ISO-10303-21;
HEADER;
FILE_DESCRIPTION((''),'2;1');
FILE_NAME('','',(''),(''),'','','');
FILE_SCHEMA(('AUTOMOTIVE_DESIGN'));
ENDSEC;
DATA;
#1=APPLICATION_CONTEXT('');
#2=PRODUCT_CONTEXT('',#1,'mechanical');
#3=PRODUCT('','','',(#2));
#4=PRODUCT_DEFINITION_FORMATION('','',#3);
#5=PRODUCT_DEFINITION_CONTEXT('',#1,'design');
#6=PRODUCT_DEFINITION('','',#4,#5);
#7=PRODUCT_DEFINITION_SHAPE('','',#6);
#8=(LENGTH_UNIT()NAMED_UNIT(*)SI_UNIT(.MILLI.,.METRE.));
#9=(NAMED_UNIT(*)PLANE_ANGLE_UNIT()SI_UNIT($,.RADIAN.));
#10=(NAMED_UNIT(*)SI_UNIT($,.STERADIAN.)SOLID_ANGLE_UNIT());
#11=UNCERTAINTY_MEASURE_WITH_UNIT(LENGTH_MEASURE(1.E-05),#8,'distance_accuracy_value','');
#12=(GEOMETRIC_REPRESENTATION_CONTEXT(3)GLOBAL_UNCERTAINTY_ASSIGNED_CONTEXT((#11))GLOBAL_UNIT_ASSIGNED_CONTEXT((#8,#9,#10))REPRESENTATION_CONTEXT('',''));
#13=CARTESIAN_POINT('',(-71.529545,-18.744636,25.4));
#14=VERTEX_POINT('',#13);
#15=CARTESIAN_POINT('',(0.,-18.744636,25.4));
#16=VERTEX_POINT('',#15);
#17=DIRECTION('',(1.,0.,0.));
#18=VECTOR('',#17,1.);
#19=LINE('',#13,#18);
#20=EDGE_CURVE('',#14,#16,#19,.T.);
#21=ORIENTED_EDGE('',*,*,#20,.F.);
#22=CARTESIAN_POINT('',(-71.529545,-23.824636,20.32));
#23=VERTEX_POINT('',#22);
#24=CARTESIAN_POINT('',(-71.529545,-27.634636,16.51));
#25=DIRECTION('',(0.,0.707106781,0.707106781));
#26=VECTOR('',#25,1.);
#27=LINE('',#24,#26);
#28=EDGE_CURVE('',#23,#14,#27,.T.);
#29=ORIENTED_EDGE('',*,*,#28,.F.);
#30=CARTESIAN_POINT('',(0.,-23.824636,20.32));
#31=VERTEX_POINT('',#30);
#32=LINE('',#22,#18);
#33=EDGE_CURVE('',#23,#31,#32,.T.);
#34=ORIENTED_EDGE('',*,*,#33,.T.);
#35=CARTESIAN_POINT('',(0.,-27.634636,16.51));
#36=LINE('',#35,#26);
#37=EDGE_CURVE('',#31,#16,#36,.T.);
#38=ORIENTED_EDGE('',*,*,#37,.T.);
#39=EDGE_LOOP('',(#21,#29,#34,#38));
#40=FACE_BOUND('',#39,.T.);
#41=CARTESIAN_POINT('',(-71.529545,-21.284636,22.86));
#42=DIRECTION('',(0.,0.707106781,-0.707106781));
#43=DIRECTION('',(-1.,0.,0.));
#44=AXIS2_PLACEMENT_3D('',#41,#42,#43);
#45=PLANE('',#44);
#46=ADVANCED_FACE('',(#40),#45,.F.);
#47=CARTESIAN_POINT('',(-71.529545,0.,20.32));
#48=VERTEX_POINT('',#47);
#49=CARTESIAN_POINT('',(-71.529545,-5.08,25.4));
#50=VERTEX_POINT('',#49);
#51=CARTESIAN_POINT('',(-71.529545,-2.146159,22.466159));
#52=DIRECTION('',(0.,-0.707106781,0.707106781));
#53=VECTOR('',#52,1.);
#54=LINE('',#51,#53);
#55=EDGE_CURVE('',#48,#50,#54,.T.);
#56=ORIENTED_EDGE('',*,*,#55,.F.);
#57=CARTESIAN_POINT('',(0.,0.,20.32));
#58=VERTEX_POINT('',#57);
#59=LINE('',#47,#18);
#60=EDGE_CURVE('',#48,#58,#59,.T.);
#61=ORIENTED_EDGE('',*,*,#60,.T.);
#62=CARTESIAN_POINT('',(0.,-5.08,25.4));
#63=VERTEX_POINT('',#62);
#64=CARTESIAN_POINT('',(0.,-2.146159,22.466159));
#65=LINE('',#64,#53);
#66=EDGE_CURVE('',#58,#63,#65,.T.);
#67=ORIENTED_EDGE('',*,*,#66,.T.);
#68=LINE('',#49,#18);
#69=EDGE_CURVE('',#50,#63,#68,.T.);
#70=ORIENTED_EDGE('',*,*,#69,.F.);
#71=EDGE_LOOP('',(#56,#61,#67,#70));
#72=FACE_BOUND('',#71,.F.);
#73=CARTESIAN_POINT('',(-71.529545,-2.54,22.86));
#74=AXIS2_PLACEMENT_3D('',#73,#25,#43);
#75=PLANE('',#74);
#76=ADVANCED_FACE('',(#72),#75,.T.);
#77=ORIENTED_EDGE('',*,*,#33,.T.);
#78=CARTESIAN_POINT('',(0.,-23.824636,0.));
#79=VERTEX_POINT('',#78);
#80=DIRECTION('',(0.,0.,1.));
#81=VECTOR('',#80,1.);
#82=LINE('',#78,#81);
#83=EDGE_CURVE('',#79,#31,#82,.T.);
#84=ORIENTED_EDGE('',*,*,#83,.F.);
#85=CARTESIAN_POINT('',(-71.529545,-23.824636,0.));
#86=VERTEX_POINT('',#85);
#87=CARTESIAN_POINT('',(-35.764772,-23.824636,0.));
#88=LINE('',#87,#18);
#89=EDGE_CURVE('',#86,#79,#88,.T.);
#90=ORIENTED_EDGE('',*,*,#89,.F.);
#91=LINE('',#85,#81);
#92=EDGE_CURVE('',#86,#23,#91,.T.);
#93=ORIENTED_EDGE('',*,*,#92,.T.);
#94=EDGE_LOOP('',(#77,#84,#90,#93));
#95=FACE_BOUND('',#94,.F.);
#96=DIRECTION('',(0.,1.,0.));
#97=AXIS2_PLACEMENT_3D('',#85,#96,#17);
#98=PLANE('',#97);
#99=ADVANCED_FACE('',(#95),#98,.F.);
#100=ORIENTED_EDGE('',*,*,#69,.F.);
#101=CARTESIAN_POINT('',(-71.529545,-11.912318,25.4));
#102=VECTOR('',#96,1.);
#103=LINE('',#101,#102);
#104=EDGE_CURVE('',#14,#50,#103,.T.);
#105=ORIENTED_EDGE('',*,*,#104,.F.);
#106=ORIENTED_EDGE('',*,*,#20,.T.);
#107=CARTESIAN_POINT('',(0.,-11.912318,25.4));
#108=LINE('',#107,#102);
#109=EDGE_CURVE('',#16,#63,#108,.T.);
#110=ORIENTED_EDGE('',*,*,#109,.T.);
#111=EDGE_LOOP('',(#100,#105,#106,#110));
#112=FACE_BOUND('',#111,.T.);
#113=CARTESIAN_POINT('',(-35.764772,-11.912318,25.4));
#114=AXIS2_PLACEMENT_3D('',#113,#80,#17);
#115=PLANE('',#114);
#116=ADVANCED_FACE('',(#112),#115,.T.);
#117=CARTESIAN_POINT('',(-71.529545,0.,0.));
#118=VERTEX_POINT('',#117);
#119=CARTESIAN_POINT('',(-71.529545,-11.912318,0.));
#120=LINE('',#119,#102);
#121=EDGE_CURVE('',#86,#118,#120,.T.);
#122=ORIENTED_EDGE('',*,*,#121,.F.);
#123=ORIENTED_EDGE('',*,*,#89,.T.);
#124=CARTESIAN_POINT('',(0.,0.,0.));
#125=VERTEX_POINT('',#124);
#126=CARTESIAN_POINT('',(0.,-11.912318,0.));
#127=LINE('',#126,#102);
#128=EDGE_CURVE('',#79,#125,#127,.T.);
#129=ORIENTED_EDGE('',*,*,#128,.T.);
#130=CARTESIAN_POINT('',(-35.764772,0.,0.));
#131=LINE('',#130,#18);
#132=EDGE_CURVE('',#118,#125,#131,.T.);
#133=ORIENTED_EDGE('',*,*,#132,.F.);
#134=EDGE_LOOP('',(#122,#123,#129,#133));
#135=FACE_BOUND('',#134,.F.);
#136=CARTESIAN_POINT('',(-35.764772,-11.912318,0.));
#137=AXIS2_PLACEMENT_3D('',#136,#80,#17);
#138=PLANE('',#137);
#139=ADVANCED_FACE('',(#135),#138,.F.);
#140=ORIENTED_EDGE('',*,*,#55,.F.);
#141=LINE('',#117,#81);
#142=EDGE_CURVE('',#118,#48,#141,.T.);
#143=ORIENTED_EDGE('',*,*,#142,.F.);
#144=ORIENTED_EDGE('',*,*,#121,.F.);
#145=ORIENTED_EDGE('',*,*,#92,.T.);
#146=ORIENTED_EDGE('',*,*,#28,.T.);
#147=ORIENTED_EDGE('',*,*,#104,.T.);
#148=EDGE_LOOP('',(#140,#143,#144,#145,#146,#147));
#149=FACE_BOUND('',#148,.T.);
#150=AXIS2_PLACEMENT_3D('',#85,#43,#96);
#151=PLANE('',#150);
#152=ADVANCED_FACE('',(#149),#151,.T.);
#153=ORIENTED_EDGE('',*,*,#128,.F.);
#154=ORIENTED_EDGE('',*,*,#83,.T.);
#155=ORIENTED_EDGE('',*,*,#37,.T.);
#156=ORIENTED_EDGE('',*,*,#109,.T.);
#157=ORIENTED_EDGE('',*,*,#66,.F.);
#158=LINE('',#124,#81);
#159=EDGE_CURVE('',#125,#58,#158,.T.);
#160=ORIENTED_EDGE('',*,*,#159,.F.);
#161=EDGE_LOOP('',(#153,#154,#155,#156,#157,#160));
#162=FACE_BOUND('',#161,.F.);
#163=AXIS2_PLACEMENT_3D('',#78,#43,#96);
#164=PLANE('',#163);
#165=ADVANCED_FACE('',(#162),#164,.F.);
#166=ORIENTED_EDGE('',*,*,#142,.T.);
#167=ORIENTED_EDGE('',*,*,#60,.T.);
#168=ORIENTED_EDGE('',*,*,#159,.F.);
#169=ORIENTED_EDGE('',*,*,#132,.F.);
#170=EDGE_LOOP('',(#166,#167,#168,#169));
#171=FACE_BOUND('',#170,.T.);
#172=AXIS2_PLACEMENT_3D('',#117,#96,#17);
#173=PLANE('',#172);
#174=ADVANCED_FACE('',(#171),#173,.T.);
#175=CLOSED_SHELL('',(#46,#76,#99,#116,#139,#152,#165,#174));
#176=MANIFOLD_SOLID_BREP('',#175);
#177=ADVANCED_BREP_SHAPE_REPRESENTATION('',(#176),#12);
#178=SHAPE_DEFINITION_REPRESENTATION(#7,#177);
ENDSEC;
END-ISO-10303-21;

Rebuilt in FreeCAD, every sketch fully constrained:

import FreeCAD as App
import Part
import Sketcher

V = App.Vector
Q = App.Units.Quantity


def edges_at(feature, points):
    """Names of the edges that pass closest to the given points."""
    edges = feature.Shape.Edges
    near = lambda p: min(range(len(edges)), key=lambda i: edges[i].distToShape(Part.Vertex(*p))[0])
    return sorted({f"Edge{near(p) + 1}" for p in points})

doc = App.newDocument("Part")
body = doc.addObject("PartDesign::Body", "Body")

# Sketch on XY plane
sketch1 = body.newObject("Sketcher::SketchObject", "Sketch")
sketch1.AttachmentSupport = (doc.getObject("XY_Plane"), [""])
sketch1.MapMode = "FlatFace"
sketch1.addGeometry([
    Part.LineSegment(V(-71.529545, 0, 0), V(-71.529545, -23.824636, 0)),
    Part.LineSegment(V(-71.529545, -23.824636, 0), V(0, -23.824636, 0)),
    Part.LineSegment(V(0, -23.824636, 0), V(0, 0, 0)),
    Part.LineSegment(V(0, 0, 0), V(-71.529545, 0, 0)),
], False)
sketch1.addConstraint([
    Sketcher.Constraint("Coincident", 0, 2, 1, 1),
    Sketcher.Constraint("Coincident", 1, 2, 2, 1),
    Sketcher.Constraint("Coincident", 2, 2, 3, 1),
    Sketcher.Constraint("Coincident", 3, 2, 0, 1),
    Sketcher.Constraint("Vertical", 0),
    Sketcher.Constraint("Horizontal", 1),
    Sketcher.Constraint("Vertical", 2),
    Sketcher.Constraint("Horizontal", 3),
    Sketcher.Constraint("Coincident", 2, 2, -1, 1),
    Sketcher.Constraint("DistanceX", 1, 1, 1, 2, 71.529545),
    Sketcher.Constraint("DistanceY", 0, 2, 0, 1, 23.824636),
])
pad1 = body.newObject("PartDesign::Pad", "Pad")
pad1.Profile = sketch1
pad1.Length = Q("1 in")
doc.recompute()

chamfer = body.newObject("PartDesign::Chamfer", "Chamfer")
chamfer.Base = (pad1, edges_at(pad1, [(-35.765, -23.825, 25.4), (-35.765, 0, 25.4)]))
chamfer.Size = Q("0.2 in")

doc.recompute()
